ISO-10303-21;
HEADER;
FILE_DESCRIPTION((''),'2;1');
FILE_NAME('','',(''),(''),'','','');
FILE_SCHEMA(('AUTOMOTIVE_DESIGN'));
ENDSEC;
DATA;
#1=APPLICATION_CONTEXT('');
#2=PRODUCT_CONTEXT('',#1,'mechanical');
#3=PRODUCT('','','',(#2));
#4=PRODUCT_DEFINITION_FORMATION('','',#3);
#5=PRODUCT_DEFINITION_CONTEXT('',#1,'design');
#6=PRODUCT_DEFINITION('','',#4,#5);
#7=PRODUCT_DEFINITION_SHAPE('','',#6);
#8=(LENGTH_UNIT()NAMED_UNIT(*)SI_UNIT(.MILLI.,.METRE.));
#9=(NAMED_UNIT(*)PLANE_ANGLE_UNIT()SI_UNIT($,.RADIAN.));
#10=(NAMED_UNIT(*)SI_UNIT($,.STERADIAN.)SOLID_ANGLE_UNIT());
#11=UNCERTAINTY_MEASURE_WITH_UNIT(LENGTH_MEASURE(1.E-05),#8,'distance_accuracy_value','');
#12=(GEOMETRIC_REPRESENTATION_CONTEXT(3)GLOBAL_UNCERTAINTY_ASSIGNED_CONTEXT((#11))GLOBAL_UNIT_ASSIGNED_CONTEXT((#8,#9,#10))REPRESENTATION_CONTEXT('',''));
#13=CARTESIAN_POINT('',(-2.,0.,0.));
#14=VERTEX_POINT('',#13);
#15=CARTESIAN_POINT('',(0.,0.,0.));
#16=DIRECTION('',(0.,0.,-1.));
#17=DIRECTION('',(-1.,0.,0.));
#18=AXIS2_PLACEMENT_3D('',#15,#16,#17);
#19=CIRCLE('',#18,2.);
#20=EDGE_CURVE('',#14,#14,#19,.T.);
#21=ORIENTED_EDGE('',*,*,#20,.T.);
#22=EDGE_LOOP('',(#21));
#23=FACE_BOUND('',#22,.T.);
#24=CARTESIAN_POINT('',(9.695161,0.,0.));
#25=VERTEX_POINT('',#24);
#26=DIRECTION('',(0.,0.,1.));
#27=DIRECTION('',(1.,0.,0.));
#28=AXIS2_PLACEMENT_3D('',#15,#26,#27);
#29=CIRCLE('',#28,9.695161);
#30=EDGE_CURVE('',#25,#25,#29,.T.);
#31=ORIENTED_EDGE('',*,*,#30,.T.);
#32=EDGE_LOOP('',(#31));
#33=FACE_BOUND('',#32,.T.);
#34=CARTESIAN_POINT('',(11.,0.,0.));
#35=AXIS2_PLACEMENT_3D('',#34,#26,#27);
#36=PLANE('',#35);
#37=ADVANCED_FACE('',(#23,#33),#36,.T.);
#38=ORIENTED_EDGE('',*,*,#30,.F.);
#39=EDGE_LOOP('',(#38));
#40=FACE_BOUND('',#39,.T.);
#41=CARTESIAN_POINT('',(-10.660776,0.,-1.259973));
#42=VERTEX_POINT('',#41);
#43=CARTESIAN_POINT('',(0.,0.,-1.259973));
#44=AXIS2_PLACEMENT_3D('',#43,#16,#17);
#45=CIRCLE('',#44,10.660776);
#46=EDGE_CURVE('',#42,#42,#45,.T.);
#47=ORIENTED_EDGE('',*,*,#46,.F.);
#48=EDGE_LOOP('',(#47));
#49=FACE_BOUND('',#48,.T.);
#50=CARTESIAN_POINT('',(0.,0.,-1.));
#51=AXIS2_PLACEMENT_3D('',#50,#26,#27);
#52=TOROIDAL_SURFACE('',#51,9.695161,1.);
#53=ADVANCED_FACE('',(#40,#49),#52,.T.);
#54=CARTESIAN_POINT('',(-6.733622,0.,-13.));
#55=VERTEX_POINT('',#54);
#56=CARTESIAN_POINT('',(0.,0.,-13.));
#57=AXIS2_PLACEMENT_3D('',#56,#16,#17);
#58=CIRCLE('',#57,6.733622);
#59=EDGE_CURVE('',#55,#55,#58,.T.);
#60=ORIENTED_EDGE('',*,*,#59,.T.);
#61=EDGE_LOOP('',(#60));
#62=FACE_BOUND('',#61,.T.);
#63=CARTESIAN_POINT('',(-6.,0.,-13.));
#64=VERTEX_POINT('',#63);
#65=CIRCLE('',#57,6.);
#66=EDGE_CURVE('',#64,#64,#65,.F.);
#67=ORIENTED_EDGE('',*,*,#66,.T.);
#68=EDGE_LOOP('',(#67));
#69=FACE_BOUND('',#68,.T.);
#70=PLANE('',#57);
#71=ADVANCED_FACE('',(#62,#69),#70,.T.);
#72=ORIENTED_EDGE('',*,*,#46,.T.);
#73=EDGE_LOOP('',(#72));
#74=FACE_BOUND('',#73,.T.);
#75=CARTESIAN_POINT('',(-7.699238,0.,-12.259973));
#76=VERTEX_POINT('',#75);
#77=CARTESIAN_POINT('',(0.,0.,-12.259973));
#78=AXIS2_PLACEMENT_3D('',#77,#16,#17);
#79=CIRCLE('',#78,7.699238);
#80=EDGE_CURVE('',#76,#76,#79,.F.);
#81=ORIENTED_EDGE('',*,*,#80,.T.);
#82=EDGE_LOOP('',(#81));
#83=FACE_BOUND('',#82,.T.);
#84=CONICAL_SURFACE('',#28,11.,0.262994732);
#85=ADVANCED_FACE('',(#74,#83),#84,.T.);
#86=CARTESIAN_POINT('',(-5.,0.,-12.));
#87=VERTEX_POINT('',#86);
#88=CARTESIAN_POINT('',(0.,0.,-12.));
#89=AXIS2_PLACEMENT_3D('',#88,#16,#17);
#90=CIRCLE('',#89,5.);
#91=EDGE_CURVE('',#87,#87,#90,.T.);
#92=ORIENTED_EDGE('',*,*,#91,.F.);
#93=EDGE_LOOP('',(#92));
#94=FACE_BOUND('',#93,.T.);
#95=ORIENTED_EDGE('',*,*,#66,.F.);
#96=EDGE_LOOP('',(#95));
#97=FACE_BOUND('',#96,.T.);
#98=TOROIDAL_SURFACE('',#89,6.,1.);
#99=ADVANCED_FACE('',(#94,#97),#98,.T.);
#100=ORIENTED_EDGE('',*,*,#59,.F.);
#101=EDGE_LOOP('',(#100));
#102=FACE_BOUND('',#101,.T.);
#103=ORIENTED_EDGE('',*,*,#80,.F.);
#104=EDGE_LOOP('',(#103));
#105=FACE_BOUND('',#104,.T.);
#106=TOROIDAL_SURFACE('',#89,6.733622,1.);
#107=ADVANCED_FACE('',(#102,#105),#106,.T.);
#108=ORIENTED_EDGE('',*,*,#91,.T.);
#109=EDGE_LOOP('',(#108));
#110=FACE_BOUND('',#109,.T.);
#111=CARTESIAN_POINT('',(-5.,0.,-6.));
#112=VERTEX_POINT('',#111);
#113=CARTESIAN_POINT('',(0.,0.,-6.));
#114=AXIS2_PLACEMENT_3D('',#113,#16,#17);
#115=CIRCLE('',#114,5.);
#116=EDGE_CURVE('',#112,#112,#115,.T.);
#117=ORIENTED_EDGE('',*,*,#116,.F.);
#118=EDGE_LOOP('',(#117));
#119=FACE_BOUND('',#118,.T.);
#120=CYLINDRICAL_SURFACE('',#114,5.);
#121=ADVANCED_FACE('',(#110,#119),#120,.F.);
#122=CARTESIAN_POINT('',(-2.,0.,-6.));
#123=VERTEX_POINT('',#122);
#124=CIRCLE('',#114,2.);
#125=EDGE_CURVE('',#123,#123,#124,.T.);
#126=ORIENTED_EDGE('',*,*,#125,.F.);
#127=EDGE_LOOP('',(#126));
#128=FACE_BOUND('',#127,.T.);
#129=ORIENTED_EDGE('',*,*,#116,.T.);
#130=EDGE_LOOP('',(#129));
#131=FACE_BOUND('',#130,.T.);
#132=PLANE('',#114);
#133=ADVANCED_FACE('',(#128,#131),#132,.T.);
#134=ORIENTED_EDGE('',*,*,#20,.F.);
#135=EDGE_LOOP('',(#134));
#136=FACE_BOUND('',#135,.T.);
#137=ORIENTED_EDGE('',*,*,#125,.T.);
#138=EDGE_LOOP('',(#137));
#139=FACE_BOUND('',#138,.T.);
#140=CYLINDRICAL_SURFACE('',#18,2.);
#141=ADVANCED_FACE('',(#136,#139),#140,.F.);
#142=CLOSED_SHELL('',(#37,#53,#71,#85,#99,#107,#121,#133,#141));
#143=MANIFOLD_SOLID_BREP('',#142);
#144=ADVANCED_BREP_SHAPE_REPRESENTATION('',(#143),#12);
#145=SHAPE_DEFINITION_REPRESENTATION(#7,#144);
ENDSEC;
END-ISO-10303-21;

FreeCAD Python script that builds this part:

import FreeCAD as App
import Part
import Sketcher


def edges_at(feature, points):
    """Names of the edges that pass closest to the given points."""
    edges = feature.Shape.Edges
    near = lambda p: min(range(len(edges)), key=lambda i: edges[i].distToShape(Part.Vertex(*p))[0])
    return sorted({f"Edge{near(p) + 1}" for p in points})

doc = App.newDocument("Part")
body = doc.addObject("PartDesign::Body", "Body")

sketch1 = doc.addObject("Sketcher::SketchObject", "Sketch")
body.addObject(sketch1)
sketch1.AttachmentSupport = (doc.XZ_Plane, [""])
sketch1.MapMode = "FlatFace"
sketch1.addGeometry([
    Part.LineSegment(App.Vector(0, -13, 0), App.Vector(0, 0, 0)),
    Part.LineSegment(App.Vector(0, 0, 0), App.Vector(11, 0, 0)),
    Part.LineSegment(App.Vector(11, 0, 0), App.Vector(8, -13, 0)),
    Part.LineSegment(App.Vector(8, -13, 0), App.Vector(0, -13, 0)),
], False)
sketch1.addConstraint([
    Sketcher.Constraint("Coincident", 0, 2, 1, 1),
    Sketcher.Constraint("Coincident", 1, 2, 2, 1),
    Sketcher.Constraint("Coincident", 2, 2, 3, 1),
    Sketcher.Constraint("Coincident", 3, 2, 0, 1),
    Sketcher.Constraint("Vertical", 0),
    Sketcher.Constraint("Horizontal", 1),
    Sketcher.Constraint("Horizontal", 3),
    Sketcher.Constraint("Coincident", 0, 2, -1, 1),
    Sketcher.Constraint("DistanceX", 1, 1, 1, 2, 11.0),
    Sketcher.Constraint("DistanceY", 0, 1, 0, 2, 13.0),
    Sketcher.Constraint("DistanceX", 3, 2, 3, 1, 7.5),
])
revolution = doc.addObject("PartDesign::Revolution", "Revolution")
body.addObject(revolution)
revolution.Profile = sketch1
revolution.ReferenceAxis = (sketch1, ["V_Axis"])
revolution.Angle = 360

sketch2 = doc.addObject("Sketcher::SketchObject", "Sketch001")
body.addObject(sketch2)
sketch2.AttachmentSupport = (doc.XY_Plane, [""])
sketch2.MapMode = "FlatFace"
sketch2.AttachmentOffset = App.Placement(App.Vector(0, 0, -13), App.Rotation())
sketch2.addGeometry(Part.Circle(App.Vector(0, 0, 0), App.Vector(0, 0, 1), 5), False)
sketch2.addConstraint([
    Sketcher.Constraint("Coincident", 0, 3, -1, 1),
    Sketcher.Constraint("Diameter", 0, 10.0),
])
pocket1 = doc.addObject("PartDesign::Pocket", "Pocket")
body.addObject(pocket1)
pocket1.Profile = sketch2
pocket1.Length = 7
pocket1.Reversed = True

sketch3 = doc.addObject("Sketcher::SketchObject", "Sketch002")
body.addObject(sketch3)
sketch3.AttachmentSupport = (doc.XY_Plane, [""])
sketch3.MapMode = "FlatFace"
sketch3.AttachmentOffset = App.Placement(App.Vector(0, 0, -6), App.Rotation())
sketch3.addGeometry(Part.Circle(App.Vector(0, 0, 0), App.Vector(0, 0, 1), 2), False)
sketch3.addConstraint([
    Sketcher.Constraint("Coincident", 0, 3, -1, 1),
    Sketcher.Constraint("Diameter", 0, 4.0),
])
pocket2 = doc.addObject("PartDesign::Pocket", "Pocket001")
body.addObject(pocket2)
pocket2.Profile = sketch3
pocket2.Type = "ThroughAll"
pocket2.Reversed = True
doc.recompute()

fillet = doc.addObject("PartDesign::Fillet", "Fillet")
body.addObject(fillet)
fillet.Base = (pocket2, edges_at(pocket2, [(5, 0, -13), (-11, 0, 0), (-7.5, 0, -13)]))
fillet.Radius = 1

doc.recompute()
